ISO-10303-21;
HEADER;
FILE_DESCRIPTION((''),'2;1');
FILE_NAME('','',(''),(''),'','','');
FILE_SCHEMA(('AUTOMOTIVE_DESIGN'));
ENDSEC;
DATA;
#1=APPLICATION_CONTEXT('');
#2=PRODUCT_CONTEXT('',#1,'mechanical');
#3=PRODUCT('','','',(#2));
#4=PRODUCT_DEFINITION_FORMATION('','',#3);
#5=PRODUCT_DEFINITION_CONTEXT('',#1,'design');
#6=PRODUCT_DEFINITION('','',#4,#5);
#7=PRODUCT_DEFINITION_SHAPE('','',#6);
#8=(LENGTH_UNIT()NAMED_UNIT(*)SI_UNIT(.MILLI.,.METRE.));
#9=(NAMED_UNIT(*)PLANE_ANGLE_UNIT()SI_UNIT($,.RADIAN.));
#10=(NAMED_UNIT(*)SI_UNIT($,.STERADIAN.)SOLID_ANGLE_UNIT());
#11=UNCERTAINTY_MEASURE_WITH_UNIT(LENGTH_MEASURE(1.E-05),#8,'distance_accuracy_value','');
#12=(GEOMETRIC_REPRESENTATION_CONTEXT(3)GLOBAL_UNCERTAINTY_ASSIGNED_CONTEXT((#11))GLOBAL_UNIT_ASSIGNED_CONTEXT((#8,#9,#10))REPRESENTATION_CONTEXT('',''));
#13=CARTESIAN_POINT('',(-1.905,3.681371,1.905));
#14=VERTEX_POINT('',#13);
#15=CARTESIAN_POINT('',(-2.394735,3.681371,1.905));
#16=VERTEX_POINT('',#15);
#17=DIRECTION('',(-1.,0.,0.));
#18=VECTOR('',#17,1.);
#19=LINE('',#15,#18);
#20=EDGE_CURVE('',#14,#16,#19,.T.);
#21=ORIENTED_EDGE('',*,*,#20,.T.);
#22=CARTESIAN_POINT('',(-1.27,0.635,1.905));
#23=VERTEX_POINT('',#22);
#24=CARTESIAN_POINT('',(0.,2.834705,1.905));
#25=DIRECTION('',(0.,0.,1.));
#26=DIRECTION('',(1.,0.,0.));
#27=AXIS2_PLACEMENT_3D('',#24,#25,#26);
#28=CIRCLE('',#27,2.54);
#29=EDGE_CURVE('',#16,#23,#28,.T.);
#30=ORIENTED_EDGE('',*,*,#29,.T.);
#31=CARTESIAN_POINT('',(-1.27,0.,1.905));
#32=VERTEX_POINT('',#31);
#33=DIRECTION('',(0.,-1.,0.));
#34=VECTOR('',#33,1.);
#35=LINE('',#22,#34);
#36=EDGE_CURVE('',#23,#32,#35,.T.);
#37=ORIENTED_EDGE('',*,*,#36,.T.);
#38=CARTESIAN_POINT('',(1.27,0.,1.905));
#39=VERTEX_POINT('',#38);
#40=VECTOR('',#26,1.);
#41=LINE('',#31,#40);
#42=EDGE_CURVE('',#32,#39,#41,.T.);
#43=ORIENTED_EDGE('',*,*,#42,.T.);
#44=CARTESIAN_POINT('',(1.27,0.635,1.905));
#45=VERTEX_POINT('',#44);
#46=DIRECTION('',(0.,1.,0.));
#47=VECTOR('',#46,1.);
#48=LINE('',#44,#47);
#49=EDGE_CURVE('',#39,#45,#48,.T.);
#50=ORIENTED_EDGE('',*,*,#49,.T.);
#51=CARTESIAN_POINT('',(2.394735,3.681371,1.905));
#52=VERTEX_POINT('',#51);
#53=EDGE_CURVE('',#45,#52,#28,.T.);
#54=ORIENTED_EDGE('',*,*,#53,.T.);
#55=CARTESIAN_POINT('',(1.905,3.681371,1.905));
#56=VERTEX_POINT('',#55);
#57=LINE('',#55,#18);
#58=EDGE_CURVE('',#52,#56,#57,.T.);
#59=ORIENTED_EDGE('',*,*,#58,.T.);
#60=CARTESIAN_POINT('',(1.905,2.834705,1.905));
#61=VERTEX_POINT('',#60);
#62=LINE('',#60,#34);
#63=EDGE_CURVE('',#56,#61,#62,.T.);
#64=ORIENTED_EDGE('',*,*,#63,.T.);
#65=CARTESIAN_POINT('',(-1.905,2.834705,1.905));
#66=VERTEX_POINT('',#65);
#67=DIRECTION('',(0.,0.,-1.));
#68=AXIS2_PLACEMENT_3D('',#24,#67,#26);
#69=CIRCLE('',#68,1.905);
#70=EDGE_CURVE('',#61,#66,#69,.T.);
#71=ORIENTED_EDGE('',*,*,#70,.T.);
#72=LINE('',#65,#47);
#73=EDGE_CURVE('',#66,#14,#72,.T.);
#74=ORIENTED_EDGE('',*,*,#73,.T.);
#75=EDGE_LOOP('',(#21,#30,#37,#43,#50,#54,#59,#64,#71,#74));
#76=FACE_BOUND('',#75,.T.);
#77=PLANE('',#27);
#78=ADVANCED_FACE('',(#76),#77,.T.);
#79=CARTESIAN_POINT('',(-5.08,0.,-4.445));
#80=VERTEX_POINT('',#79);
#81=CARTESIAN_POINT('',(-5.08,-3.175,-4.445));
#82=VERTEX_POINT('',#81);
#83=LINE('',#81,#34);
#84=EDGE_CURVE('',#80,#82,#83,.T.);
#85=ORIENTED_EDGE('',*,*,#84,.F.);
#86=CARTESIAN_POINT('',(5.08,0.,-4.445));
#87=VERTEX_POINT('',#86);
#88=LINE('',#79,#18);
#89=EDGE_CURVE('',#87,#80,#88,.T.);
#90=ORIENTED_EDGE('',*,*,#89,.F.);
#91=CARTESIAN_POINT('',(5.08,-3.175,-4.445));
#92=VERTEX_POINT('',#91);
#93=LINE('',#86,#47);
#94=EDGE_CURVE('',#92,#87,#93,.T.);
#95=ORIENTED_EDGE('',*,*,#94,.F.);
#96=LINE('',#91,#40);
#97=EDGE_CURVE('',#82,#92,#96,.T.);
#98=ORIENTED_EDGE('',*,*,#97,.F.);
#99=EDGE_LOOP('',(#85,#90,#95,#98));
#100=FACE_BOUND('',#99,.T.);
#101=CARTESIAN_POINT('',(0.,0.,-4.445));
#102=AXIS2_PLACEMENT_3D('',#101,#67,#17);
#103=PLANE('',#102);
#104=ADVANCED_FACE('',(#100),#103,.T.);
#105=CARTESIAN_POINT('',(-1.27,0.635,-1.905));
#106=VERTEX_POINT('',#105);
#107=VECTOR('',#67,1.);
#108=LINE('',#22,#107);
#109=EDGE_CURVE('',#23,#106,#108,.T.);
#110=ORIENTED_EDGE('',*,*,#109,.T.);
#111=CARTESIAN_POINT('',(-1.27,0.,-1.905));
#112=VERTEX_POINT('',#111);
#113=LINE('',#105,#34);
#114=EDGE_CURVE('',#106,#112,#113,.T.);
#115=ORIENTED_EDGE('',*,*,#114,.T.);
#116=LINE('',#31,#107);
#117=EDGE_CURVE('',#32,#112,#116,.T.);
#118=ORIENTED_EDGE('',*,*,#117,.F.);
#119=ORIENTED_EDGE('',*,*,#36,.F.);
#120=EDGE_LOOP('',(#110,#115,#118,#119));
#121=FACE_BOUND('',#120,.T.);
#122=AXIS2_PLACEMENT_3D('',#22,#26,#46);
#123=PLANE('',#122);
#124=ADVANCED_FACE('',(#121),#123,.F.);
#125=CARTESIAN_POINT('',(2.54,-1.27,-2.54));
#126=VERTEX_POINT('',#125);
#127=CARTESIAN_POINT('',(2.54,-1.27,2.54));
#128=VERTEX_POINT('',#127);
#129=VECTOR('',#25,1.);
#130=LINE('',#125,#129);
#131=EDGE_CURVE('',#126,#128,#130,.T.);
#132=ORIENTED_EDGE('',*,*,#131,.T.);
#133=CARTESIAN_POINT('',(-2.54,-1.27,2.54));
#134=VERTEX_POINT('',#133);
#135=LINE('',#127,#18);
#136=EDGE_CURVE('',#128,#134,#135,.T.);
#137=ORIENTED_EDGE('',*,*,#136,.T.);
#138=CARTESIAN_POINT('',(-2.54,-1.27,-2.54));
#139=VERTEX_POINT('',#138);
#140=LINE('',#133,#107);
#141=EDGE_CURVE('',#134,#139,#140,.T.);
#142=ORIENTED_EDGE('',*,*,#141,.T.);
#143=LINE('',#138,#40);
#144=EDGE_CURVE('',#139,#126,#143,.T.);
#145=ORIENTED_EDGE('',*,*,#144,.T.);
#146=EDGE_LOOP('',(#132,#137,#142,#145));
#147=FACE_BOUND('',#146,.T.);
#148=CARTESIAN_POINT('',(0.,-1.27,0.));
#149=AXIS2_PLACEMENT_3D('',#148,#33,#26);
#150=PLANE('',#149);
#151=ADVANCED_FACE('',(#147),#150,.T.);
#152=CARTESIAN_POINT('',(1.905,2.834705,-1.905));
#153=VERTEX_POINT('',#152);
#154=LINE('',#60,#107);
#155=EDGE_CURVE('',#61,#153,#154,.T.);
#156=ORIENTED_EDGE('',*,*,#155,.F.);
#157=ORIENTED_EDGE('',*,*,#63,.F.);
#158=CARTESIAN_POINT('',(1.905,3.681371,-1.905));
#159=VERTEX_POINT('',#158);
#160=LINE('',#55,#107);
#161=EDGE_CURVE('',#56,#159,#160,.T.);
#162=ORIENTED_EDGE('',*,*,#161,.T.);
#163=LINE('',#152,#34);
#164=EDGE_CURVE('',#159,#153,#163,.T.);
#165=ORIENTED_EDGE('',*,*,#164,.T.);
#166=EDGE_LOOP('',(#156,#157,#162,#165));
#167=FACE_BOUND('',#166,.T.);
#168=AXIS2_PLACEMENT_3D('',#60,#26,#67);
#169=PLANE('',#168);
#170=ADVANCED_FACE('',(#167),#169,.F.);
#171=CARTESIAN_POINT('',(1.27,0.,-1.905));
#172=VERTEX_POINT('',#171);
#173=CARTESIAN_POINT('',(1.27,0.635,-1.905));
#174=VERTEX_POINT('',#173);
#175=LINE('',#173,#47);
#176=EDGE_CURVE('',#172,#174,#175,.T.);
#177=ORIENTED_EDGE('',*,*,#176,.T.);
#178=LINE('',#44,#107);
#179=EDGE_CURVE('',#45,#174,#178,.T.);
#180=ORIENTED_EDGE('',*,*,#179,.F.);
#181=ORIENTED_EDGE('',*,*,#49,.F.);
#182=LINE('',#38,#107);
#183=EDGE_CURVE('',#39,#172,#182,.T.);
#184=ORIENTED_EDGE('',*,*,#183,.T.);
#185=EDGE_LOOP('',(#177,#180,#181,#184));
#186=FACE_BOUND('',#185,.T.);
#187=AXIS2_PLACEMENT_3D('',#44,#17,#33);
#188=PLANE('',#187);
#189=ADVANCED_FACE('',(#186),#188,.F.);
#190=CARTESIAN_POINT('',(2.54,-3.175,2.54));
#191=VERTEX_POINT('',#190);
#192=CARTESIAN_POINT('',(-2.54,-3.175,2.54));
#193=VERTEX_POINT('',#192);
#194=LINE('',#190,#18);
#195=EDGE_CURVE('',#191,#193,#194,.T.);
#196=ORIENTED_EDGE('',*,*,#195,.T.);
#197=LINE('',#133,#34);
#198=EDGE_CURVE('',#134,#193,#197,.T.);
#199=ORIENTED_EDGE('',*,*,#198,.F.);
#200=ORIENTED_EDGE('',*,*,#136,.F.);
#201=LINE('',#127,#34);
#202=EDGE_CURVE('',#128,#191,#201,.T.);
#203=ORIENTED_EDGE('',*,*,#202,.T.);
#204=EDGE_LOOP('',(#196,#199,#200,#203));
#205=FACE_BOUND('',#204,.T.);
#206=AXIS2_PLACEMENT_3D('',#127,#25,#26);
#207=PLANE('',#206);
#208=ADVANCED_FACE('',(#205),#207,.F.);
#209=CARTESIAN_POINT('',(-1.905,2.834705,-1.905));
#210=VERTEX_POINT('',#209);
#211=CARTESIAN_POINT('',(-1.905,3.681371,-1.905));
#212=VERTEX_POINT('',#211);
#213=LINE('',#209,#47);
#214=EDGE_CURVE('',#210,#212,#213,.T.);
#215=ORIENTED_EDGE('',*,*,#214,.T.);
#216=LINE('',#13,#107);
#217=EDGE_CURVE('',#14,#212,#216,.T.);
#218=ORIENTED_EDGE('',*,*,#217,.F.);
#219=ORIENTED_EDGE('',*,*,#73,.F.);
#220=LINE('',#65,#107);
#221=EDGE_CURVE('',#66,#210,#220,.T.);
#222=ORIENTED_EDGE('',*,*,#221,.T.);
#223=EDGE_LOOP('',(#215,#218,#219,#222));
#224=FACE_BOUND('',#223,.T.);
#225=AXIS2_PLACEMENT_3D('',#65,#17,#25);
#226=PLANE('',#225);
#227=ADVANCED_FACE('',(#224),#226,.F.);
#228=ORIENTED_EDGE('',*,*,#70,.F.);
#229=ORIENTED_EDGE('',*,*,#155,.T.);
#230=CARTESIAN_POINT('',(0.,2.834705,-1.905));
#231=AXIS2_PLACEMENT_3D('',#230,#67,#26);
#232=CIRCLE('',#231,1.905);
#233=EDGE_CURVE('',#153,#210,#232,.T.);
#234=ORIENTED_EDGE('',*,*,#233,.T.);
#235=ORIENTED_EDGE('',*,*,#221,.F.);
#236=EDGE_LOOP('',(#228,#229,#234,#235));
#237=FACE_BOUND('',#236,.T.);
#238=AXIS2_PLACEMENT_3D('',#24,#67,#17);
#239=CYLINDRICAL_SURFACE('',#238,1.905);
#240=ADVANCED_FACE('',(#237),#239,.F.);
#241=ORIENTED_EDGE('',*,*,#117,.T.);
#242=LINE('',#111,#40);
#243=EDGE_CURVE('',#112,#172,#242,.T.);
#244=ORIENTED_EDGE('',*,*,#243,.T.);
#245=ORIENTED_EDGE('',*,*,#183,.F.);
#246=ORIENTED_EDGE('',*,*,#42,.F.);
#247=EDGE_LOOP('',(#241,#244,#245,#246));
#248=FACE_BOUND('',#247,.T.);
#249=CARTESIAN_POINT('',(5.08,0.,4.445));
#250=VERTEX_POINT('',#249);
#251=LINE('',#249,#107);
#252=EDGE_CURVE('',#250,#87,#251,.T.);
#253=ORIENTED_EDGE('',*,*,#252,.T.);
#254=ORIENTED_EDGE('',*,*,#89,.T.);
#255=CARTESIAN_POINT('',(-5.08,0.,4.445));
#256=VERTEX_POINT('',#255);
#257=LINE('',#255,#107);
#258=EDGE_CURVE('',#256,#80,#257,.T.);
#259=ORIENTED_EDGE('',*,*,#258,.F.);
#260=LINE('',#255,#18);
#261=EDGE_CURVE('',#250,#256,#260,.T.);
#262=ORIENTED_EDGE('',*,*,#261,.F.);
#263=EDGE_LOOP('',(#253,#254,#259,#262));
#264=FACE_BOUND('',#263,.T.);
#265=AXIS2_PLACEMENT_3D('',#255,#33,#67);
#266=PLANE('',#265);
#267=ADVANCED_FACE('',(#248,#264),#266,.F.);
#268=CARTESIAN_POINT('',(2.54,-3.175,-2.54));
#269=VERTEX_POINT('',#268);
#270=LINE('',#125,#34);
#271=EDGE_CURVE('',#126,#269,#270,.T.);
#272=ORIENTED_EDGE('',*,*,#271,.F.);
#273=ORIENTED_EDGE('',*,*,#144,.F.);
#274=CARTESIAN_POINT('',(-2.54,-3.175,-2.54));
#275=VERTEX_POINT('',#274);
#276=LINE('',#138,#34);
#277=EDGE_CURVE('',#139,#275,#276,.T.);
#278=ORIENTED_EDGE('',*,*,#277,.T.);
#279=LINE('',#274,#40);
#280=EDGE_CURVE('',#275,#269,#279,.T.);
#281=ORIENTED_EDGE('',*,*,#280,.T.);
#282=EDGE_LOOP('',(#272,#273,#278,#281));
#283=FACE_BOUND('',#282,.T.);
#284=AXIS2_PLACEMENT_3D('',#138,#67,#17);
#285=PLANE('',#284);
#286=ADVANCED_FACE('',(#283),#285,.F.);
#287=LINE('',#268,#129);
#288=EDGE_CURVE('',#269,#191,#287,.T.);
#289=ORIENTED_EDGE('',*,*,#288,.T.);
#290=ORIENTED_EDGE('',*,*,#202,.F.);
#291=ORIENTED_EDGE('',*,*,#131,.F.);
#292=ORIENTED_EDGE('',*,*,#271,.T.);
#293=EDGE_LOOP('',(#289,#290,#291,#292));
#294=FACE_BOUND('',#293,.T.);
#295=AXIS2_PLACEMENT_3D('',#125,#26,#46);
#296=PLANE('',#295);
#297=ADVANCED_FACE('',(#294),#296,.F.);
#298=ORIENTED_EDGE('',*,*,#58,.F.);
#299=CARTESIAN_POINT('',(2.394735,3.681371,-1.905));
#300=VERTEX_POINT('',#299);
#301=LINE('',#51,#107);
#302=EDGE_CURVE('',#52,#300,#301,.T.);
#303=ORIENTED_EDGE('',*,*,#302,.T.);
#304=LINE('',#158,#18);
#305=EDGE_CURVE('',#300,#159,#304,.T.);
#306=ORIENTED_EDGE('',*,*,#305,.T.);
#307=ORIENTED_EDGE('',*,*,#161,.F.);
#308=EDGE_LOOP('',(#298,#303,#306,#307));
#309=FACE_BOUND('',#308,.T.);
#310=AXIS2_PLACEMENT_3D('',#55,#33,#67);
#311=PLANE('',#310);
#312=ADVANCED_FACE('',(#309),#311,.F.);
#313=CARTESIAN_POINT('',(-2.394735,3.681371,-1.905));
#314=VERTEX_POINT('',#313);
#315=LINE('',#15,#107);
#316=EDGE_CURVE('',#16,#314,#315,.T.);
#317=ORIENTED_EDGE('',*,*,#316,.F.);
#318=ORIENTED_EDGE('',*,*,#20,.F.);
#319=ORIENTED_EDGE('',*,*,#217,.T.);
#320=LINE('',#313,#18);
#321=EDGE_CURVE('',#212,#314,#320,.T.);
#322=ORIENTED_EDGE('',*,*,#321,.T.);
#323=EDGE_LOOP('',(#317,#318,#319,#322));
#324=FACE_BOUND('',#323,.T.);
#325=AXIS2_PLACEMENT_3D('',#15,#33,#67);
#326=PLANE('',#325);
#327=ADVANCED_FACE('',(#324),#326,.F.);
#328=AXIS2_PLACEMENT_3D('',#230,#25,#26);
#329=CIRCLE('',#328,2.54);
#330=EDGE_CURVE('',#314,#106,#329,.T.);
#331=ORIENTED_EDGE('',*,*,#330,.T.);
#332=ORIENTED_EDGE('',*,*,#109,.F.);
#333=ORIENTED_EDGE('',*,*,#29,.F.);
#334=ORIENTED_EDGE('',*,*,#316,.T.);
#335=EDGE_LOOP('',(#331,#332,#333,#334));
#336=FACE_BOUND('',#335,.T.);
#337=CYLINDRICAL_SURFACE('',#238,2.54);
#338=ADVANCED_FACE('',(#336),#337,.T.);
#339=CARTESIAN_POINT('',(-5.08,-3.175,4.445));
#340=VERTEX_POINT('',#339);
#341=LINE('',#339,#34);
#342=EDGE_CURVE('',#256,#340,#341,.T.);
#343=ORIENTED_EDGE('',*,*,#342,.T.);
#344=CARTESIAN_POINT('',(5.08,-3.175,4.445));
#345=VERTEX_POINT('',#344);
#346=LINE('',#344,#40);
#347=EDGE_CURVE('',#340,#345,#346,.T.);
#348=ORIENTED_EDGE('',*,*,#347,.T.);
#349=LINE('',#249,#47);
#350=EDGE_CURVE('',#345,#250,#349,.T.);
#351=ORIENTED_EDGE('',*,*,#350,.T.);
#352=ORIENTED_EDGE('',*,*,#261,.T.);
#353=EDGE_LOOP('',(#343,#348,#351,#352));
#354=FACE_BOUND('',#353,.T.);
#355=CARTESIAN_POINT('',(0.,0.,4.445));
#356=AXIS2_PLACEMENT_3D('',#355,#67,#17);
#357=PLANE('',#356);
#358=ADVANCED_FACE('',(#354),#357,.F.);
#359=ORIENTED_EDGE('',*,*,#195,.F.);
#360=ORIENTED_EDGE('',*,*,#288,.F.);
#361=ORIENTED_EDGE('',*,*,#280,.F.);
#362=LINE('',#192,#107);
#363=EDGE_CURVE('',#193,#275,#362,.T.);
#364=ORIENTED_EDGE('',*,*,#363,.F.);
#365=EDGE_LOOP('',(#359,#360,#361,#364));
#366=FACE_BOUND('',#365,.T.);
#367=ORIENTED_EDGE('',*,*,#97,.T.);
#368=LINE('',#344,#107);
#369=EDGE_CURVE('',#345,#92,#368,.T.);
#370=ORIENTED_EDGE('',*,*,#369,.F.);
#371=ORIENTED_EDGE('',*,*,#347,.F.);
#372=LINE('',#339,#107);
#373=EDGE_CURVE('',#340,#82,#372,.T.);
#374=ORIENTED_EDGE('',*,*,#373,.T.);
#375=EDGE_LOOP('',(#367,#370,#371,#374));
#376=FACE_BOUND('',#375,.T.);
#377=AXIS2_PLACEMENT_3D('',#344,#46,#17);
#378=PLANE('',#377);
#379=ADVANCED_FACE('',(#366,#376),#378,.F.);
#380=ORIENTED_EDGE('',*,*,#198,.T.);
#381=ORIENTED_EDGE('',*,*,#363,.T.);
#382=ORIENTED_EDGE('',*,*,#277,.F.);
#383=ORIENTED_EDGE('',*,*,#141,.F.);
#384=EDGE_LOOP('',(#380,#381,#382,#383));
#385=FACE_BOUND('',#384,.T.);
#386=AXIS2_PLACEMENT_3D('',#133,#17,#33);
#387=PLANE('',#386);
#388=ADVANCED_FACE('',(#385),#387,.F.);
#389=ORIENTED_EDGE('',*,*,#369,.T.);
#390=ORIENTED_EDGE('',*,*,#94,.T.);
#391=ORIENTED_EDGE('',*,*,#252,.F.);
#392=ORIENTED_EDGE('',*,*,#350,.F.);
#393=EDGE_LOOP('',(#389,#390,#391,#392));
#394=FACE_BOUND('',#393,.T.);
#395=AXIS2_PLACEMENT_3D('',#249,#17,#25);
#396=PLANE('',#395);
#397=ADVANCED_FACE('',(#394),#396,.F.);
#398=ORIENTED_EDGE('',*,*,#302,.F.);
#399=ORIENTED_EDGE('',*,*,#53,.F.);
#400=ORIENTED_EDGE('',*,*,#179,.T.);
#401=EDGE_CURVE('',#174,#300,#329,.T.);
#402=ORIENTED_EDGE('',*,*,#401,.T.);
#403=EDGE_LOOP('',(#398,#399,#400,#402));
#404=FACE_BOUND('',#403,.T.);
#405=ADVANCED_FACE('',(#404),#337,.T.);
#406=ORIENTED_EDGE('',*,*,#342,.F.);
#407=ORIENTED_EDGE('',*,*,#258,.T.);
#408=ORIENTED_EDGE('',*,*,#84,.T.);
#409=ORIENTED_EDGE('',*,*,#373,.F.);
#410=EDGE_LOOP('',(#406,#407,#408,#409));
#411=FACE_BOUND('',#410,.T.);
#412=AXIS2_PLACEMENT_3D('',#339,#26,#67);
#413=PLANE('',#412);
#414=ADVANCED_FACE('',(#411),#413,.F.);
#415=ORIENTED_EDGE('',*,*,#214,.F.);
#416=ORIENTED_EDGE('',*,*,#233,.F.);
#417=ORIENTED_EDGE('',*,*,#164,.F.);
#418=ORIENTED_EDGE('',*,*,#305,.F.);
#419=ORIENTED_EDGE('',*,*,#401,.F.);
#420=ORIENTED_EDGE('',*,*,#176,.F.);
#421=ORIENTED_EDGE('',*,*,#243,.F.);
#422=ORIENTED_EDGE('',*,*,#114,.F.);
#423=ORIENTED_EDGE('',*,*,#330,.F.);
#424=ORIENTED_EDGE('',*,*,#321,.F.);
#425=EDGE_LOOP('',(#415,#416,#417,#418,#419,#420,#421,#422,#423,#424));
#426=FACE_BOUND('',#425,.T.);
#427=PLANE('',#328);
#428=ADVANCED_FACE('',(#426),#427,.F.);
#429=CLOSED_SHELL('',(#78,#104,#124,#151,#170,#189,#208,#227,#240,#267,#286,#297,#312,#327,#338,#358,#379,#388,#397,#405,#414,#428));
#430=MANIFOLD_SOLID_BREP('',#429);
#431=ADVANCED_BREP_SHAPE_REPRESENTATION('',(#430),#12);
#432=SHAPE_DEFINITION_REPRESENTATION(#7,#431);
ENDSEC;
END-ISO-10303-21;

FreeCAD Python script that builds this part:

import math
import FreeCAD as App
import Part
import Sketcher

V = App.Vector
Q = App.Units.Quantity


def add_polygon(sketch, points):
    """Adds a closed chain of lines whose ends are joined by coincident constraints."""
    first, n = sketch.GeometryCount, len(points)
    for a, b in zip(points, points[1:] + points[:1]):
        sketch.addGeometry(Part.LineSegment(App.Vector(*a, 0), App.Vector(*b, 0)), False)
    for i in range(n):
        sketch.addConstraint(Sketcher.Constraint("Coincident", first + i, 2, first + (i + 1) % n, 1))

doc = App.newDocument("Part")
body = doc.addObject("PartDesign::Body", "Body")

# Sketch on XY plane
sketch1 = body.newObject("Sketcher::SketchObject", "Sketch")
sketch1.AttachmentSupport = (doc.getObject("XY_Plane"), [""])
sketch1.MapMode = "FlatFace"
add_polygon(sketch1, [(-5.1, 0), (-5.1, -3.2), (5.1, -3.2), (5.1, 0)])  # lines 0-3
sketch1.addConstraint(Sketcher.Constraint("Vertical", 0))
sketch1.addConstraint(Sketcher.Constraint("Horizontal", 1))
sketch1.addConstraint(Sketcher.Constraint("Vertical", 2))
sketch1.addConstraint(Sketcher.Constraint("Horizontal", 3))
sketch1.addConstraint(Sketcher.Constraint("Symmetric", 2, 2, 3, 2, -1, 1))
sketch1.addConstraint(Sketcher.Constraint("DistanceX", 1, 1, 1, 2, Q("0.4 in")))
sketch1.addConstraint(Sketcher.Constraint("DistanceY", 0, 2, 0, 1, Q("0.125 in")))
pad1 = body.newObject("PartDesign::Pad", "Pad")
pad1.Profile = sketch1
pad1.Length = Q("0.35 in")
pad1.Midplane = True

# Sketch on XY plane
sketch2 = body.newObject("Sketcher::SketchObject", "Sketch001")
sketch2.AttachmentSupport = (doc.getObject("XY_Plane"), [""])
sketch2.MapMode = "FlatFace"
sketch2.addGeometry(Part.LineSegment(V(-1.91, 2.83, 0), V(-1.91, 3.68, 0)), False)
sketch2.addGeometry(Part.LineSegment(V(-1.91, 3.68, 0), V(-2.39, 3.68, 0)), False)
sketch2.addGeometry(Part.ArcOfCircle(Part.Circle(V(0, 2.83, 0), V(0, 0, 1), 2.54), math.radians(161), math.radians(240)), False)
sketch2.addGeometry(Part.LineSegment(V(-1.27, 0.64, 0), V(-1.27, 0, 0)), False)
sketch2.addGeometry(Part.LineSegment(V(-1.27, 0, 0), V(1.27, 0, 0)), False)
sketch2.addGeometry(Part.LineSegment(V(1.27, 0, 0), V(1.27, 0.64, 0)), False)
sketch2.addGeometry(Part.ArcOfCircle(Part.Circle(V(0, 2.83, 0), V(0, 0, 1), 2.54), math.radians(-60), math.radians(19)), False)
sketch2.addGeometry(Part.LineSegment(V(2.39, 3.68, 0), V(1.91, 3.68, 0)), False)
sketch2.addGeometry(Part.LineSegment(V(1.91, 3.68, 0), V(1.91, 2.83, 0)), False)
sketch2.addGeometry(Part.ArcOfCircle(Part.Circle(V(0, 2.83, 0), V(0, 0, 1), 1.91), math.radians(180), math.radians(360)), False)
sketch2.addConstraint(Sketcher.Constraint("Coincident", 0, 2, 1, 1))
sketch2.addConstraint(Sketcher.Constraint("Coincident", 1, 2, 2, 1))
sketch2.addConstraint(Sketcher.Constraint("Coincident", 2, 2, 3, 1))
sketch2.addConstraint(Sketcher.Constraint("Coincident", 3, 2, 4, 1))
sketch2.addConstraint(Sketcher.Constraint("Coincident", 4, 2, 5, 1))
sketch2.addConstraint(Sketcher.Constraint("Coincident", 5, 2, 6, 1))
sketch2.addConstraint(Sketcher.Constraint("Coincident", 6, 2, 7, 1))
sketch2.addConstraint(Sketcher.Constraint("Coincident", 7, 2, 8, 1))
sketch2.addConstraint(Sketcher.Constraint("Tangent", 8, 2, 9, 2))
sketch2.addConstraint(Sketcher.Constraint("Tangent", 9, 1, 0, 1))
sketch2.addConstraint(Sketcher.Constraint("Vertical", 0))
sketch2.addConstraint(Sketcher.Constraint("Horizontal", 1))
sketch2.addConstraint(Sketcher.Constraint("Vertical", 3))
sketch2.addConstraint(Sketcher.Constraint("Horizontal", 4))
sketch2.addConstraint(Sketcher.Constraint("Vertical", 5))
sketch2.addConstraint(Sketcher.Constraint("Horizontal", 7))
sketch2.addConstraint(Sketcher.Constraint("Vertical", 8))
sketch2.addConstraint(Sketcher.Constraint("Coincident", 6, 3, 2, 3))
sketch2.addConstraint(Sketcher.Constraint("Coincident", 9, 3, 2, 3))
sketch2.addConstraint(Sketcher.Constraint("Equal", 2, 6))
sketch2.addConstraint(Sketcher.Constraint("Symmetric", 3, 2, 4, 2, -1, 1))
sketch2.addConstraint(Sketcher.Constraint("Symmetric", 1, 2, 6, 2, -2))
sketch2.addConstraint(Sketcher.Constraint("Radius", 2, Q("0.1 in")))
sketch2.addConstraint(Sketcher.Constraint("DistanceX", 4, 1, 4, 2, Q("0.1 in")))
sketch2.addConstraint(Sketcher.Constraint("Radius", 9, Q("0.075 in")))
sketch2.addConstraint(Sketcher.Constraint("DistanceY", 3, 2, 3, 1, Q("0.025 in")))
sketch2.addConstraint(Sketcher.Constraint("DistanceX", 1, 2, 1, 1, Q("0.489735 mm")))
pad2 = body.newObject("PartDesign::Pad", "Pad001")
pad2.Profile = sketch2
pad2.Length = Q("0.15 in")
pad2.Midplane = True

# Sketch on XZ plane
sketch3 = body.newObject("Sketcher::SketchObject", "Sketch002")
sketch3.AttachmentSupport = (doc.getObject("XZ_Plane"), [""])
sketch3.MapMode = "FlatFace"
sketch3.AttachmentOffset = App.Placement(V(0, 0, 0.125 * 25.4), App.Rotation())
add_polygon(sketch3, [(-8, 7), (-8, -7), (8, -7), (8, 7)])  # lines 0-3
add_polygon(sketch3, [(5, -4), (-5, -4), (-5, 4), (5, 4)])  # lines 4-7
add_polygon(sketch3, [(-3, 3), (-3, -3), (3, -3), (3, 3)])  # lines 8-11
sketch3.addConstraint(Sketcher.Constraint("Vertical", 0))
sketch3.addConstraint(Sketcher.Constraint("Horizontal", 1))
sketch3.addConstraint(Sketcher.Constraint("Vertical", 2))
sketch3.addConstraint(Sketcher.Constraint("Horizontal", 3))
sketch3.addConstraint(Sketcher.Constraint("Horizontal", 4))
sketch3.addConstraint(Sketcher.Constraint("Vertical", 5))
sketch3.addConstraint(Sketcher.Constraint("Horizontal", 6))
sketch3.addConstraint(Sketcher.Constraint("Vertical", 7))
sketch3.addConstraint(Sketcher.Constraint("Vertical", 8))
sketch3.addConstraint(Sketcher.Constraint("Horizontal", 9))
sketch3.addConstraint(Sketcher.Constraint("Vertical", 10))
sketch3.addConstraint(Sketcher.Constraint("Horizontal", 11))
sketch3.addConstraint(Sketcher.Constraint("Symmetric", 0, 2, 2, 2, -1, 1))
sketch3.addConstraint(Sketcher.Constraint("Symmetric", 4, 2, 6, 2, -1, 1))
sketch3.addConstraint(Sketcher.Constraint("Symmetric", 8, 2, 10, 2, -1, 1))
sketch3.addConstraint(Sketcher.Constraint("Equal", 11, 8))
sketch3.addConstraint(Sketcher.Constraint("DistanceX", 4, 2, 4, 1, Q("0.4 in")))
sketch3.addConstraint(Sketcher.Constraint("DistanceX", 9, 1, 9, 2, Q("0.2 in")))
sketch3.addConstraint(Sketcher.Constraint("DistanceY", 5, 1, 5, 2, Q("0.35 in")))
sketch3.addConstraint(Sketcher.Constraint("DistanceX", 1, 1, 1, 2, Q("15.188 mm")))
sketch3.addConstraint(Sketcher.Constraint("DistanceY", 0, 2, 0, 1, Q("13.918 mm")))
pocket1 = body.newObject("PartDesign::Pocket", "Pocket")
pocket1.Profile = sketch3
pocket1.Length = Q("0.075 in")

doc.recompute()
